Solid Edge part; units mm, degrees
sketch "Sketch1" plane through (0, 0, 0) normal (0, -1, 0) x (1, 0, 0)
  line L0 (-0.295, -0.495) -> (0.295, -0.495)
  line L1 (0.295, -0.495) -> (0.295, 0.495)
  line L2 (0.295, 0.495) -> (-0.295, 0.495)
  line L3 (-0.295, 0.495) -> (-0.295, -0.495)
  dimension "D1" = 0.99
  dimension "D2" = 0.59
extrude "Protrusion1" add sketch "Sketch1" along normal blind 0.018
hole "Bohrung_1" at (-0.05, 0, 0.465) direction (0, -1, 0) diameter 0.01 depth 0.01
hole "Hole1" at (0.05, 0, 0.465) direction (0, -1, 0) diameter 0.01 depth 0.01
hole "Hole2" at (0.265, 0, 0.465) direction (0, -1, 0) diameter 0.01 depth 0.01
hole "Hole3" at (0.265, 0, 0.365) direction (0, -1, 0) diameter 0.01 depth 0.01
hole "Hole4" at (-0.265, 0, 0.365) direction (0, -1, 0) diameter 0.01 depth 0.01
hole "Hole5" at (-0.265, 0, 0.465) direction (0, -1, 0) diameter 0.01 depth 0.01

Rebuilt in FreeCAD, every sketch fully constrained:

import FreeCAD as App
import Part
import Sketcher
Q = App.Units.Quantity

doc = App.newDocument("Part")
body = doc.addObject("PartDesign::Body", "Body")

# Sketch on XZ plane
sketch1 = body.newObject("Sketcher::SketchObject", "Sketch")
sketch1.AttachmentSupport = (doc.getObject("XZ_Plane"), [""])
sketch1.MapMode = "FlatFace"
sketch1.addGeometry([
    Part.LineSegment(App.Vector(-0.3, 0.5, 0), App.Vector(-0.3, -0.5, 0)),
    Part.LineSegment(App.Vector(-0.3, -0.5, 0), App.Vector(0.3, -0.5, 0)),
    Part.LineSegment(App.Vector(0.3, -0.5, 0), App.Vector(0.3, 0.5, 0)),
    Part.LineSegment(App.Vector(0.3, 0.5, 0), App.Vector(-0.3, 0.5, 0)),
], False)
sketch1.addConstraint([
    Sketcher.Constraint("Coincident", 0, 2, 1, 1),
    Sketcher.Constraint("Coincident", 1, 2, 2, 1),
    Sketcher.Constraint("Coincident", 2, 2, 3, 1),
    Sketcher.Constraint("Coincident", 3, 2, 0, 1),
    Sketcher.Constraint("Vertical", 0),
    Sketcher.Constraint("Horizontal", 1),
    Sketcher.Constraint("Vertical", 2),
    Sketcher.Constraint("Horizontal", 3),
    Sketcher.Constraint("Symmetric", 0, 2, 2, 2, -1, 1),
    Sketcher.Constraint("DistanceX", 0, 2, -1, 1, Q("0.295 mm")),
    Sketcher.Constraint("DistanceY", 0, 2, 0, 1, Q("0.99 mm")),
])
pad1 = body.newObject("PartDesign::Pad", "Pad")
pad1.Profile = sketch1
pad1.Length = 0.018

# Sketch on XZ plane
sketch2 = body.newObject("Sketcher::SketchObject", "Sketch001")
sketch2.AttachmentSupport = (doc.getObject("XZ_Plane"), [""])
sketch2.MapMode = "FlatFace"
sketch2.addGeometry(Part.Circle(App.Vector(-0.05, 0.465, 0), App.Vector(0, 0, 1), 0.005), False)
sketch2.addConstraint([
    Sketcher.Constraint("Diameter", 0, Q("0.01 mm")),
    Sketcher.Constraint("DistanceX", 0, 3, -1, 1, Q("0.05 mm")),
    Sketcher.Constraint("DistanceY", -1, 1, 0, 3, Q("0.465 mm")),
])
doc.recompute()
hole = body.newObject("PartDesign::Hole", "Hole")
hole.Profile = sketch2
hole.ThreadType = "None"
hole.Diameter = 0.01
hole.DepthType = "Dimension"
hole.Depth = 0.01
hole.DrillPoint = "Flat"
hole.Reversed = True

# Sketch on XZ plane
sketch3 = body.newObject("Sketcher::SketchObject", "Sketch002")
sketch3.AttachmentSupport = (doc.getObject("XZ_Plane"), [""])
sketch3.MapMode = "FlatFace"
sketch3.addGeometry(Part.Circle(App.Vector(0.05, 0.465, 0), App.Vector(0, 0, 1), 0.005), False)
sketch3.addConstraint([
    Sketcher.Constraint("Diameter", 0, Q("0.01 mm")),
    Sketcher.Constraint("DistanceX", -1, 1, 0, 3, Q("0.05 mm")),
    Sketcher.Constraint("DistanceY", -1, 1, 0, 3, Q("0.465 mm")),
])
doc.recompute()
hole2 = body.newObject("PartDesign::Hole", "Hole001")
hole2.Profile = sketch3
hole2.ThreadType = "None"
hole2.Diameter = 0.01
hole2.DepthType = "Dimension"
hole2.Depth = 0.01
hole2.DrillPoint = "Flat"
hole2.Reversed = True

# Sketch on XZ plane
sketch4 = body.newObject("Sketcher::SketchObject", "Sketch003")
sketch4.AttachmentSupport = (doc.getObject("XZ_Plane"), [""])
sketch4.MapMode = "FlatFace"
sketch4.addGeometry(Part.Circle(App.Vector(0.265, 0.465, 0), App.Vector(0, 0, 1), 0.005), False)
sketch4.addConstraint([
    Sketcher.Constraint("Diameter", 0, Q("0.01 mm")),
    Sketcher.Constraint("DistanceX", -1, 1, 0, 3, Q("0.265 mm")),
    Sketcher.Constraint("DistanceY", -1, 1, 0, 3, Q("0.465 mm")),
])
doc.recompute()
hole3 = body.newObject("PartDesign::Hole", "Hole002")
hole3.Profile = sketch4
hole3.ThreadType = "None"
hole3.Diameter = 0.01
hole3.DepthType = "Dimension"
hole3.Depth = 0.01
hole3.DrillPoint = "Flat"
hole3.Reversed = True

# Sketch on XZ plane
sketch5 = body.newObject("Sketcher::SketchObject", "Sketch004")
sketch5.AttachmentSupport = (doc.getObject("XZ_Plane"), [""])
sketch5.MapMode = "FlatFace"
sketch5.addGeometry(Part.Circle(App.Vector(0.265, 0.365, 0), App.Vector(0, 0, 1), 0.005), False)
sketch5.addConstraint([
    Sketcher.Constraint("Diameter", 0, Q("0.01 mm")),
    Sketcher.Constraint("DistanceX", -1, 1, 0, 3, Q("0.265 mm")),
    Sketcher.Constraint("DistanceY", -1, 1, 0, 3, Q("0.365 mm")),
])
doc.recompute()
hole4 = body.newObject("PartDesign::Hole", "Hole003")
hole4.Profile = sketch5
hole4.ThreadType = "None"
hole4.Diameter = 0.01
hole4.DepthType = "Dimension"
hole4.Depth = 0.01
hole4.DrillPoint = "Flat"
hole4.Reversed = True

# Sketch on XZ plane
sketch6 = body.newObject("Sketcher::SketchObject", "Sketch005")
sketch6.AttachmentSupport = (doc.getObject("XZ_Plane"), [""])
sketch6.MapMode = "FlatFace"
sketch6.addGeometry(Part.Circle(App.Vector(-0.265, 0.365, 0), App.Vector(0, 0, 1), 0.005), False)
sketch6.addConstraint([
    Sketcher.Constraint("Diameter", 0, Q("0.01 mm")),
    Sketcher.Constraint("DistanceX", 0, 3, -1, 1, Q("0.265 mm")),
    Sketcher.Constraint("DistanceY", -1, 1, 0, 3, Q("0.365 mm")),
])
doc.recompute()
hole5 = body.newObject("PartDesign::Hole", "Hole004")
hole5.Profile = sketch6
hole5.ThreadType = "None"
hole5.Diameter = 0.01
hole5.DepthType = "Dimension"
hole5.Depth = 0.01
hole5.DrillPoint = "Flat"
hole5.Reversed = True

# Sketch on XZ plane
sketch7 = body.newObject("Sketcher::SketchObject", "Sketch006")
sketch7.AttachmentSupport = (doc.getObject("XZ_Plane"), [""])
sketch7.MapMode = "FlatFace"
sketch7.addGeometry(Part.Circle(App.Vector(-0.265, 0.465, 0), App.Vector(0, 0, 1), 0.005), False)
sketch7.addConstraint([
    Sketcher.Constraint("Diameter", 0, Q("0.01 mm")),
    Sketcher.Constraint("DistanceX", 0, 3, -1, 1, Q("0.265 mm")),
    Sketcher.Constraint("DistanceY", -1, 1, 0, 3, Q("0.465 mm")),
])
doc.recompute()
hole6 = body.newObject("PartDesign::Hole", "Hole005")
hole6.Profile = sketch7
hole6.ThreadType = "None"
hole6.Diameter = 0.01
hole6.DepthType = "Dimension"
hole6.Depth = 0.01
hole6.DrillPoint = "Flat"
hole6.Reversed = True

doc.recompute()
